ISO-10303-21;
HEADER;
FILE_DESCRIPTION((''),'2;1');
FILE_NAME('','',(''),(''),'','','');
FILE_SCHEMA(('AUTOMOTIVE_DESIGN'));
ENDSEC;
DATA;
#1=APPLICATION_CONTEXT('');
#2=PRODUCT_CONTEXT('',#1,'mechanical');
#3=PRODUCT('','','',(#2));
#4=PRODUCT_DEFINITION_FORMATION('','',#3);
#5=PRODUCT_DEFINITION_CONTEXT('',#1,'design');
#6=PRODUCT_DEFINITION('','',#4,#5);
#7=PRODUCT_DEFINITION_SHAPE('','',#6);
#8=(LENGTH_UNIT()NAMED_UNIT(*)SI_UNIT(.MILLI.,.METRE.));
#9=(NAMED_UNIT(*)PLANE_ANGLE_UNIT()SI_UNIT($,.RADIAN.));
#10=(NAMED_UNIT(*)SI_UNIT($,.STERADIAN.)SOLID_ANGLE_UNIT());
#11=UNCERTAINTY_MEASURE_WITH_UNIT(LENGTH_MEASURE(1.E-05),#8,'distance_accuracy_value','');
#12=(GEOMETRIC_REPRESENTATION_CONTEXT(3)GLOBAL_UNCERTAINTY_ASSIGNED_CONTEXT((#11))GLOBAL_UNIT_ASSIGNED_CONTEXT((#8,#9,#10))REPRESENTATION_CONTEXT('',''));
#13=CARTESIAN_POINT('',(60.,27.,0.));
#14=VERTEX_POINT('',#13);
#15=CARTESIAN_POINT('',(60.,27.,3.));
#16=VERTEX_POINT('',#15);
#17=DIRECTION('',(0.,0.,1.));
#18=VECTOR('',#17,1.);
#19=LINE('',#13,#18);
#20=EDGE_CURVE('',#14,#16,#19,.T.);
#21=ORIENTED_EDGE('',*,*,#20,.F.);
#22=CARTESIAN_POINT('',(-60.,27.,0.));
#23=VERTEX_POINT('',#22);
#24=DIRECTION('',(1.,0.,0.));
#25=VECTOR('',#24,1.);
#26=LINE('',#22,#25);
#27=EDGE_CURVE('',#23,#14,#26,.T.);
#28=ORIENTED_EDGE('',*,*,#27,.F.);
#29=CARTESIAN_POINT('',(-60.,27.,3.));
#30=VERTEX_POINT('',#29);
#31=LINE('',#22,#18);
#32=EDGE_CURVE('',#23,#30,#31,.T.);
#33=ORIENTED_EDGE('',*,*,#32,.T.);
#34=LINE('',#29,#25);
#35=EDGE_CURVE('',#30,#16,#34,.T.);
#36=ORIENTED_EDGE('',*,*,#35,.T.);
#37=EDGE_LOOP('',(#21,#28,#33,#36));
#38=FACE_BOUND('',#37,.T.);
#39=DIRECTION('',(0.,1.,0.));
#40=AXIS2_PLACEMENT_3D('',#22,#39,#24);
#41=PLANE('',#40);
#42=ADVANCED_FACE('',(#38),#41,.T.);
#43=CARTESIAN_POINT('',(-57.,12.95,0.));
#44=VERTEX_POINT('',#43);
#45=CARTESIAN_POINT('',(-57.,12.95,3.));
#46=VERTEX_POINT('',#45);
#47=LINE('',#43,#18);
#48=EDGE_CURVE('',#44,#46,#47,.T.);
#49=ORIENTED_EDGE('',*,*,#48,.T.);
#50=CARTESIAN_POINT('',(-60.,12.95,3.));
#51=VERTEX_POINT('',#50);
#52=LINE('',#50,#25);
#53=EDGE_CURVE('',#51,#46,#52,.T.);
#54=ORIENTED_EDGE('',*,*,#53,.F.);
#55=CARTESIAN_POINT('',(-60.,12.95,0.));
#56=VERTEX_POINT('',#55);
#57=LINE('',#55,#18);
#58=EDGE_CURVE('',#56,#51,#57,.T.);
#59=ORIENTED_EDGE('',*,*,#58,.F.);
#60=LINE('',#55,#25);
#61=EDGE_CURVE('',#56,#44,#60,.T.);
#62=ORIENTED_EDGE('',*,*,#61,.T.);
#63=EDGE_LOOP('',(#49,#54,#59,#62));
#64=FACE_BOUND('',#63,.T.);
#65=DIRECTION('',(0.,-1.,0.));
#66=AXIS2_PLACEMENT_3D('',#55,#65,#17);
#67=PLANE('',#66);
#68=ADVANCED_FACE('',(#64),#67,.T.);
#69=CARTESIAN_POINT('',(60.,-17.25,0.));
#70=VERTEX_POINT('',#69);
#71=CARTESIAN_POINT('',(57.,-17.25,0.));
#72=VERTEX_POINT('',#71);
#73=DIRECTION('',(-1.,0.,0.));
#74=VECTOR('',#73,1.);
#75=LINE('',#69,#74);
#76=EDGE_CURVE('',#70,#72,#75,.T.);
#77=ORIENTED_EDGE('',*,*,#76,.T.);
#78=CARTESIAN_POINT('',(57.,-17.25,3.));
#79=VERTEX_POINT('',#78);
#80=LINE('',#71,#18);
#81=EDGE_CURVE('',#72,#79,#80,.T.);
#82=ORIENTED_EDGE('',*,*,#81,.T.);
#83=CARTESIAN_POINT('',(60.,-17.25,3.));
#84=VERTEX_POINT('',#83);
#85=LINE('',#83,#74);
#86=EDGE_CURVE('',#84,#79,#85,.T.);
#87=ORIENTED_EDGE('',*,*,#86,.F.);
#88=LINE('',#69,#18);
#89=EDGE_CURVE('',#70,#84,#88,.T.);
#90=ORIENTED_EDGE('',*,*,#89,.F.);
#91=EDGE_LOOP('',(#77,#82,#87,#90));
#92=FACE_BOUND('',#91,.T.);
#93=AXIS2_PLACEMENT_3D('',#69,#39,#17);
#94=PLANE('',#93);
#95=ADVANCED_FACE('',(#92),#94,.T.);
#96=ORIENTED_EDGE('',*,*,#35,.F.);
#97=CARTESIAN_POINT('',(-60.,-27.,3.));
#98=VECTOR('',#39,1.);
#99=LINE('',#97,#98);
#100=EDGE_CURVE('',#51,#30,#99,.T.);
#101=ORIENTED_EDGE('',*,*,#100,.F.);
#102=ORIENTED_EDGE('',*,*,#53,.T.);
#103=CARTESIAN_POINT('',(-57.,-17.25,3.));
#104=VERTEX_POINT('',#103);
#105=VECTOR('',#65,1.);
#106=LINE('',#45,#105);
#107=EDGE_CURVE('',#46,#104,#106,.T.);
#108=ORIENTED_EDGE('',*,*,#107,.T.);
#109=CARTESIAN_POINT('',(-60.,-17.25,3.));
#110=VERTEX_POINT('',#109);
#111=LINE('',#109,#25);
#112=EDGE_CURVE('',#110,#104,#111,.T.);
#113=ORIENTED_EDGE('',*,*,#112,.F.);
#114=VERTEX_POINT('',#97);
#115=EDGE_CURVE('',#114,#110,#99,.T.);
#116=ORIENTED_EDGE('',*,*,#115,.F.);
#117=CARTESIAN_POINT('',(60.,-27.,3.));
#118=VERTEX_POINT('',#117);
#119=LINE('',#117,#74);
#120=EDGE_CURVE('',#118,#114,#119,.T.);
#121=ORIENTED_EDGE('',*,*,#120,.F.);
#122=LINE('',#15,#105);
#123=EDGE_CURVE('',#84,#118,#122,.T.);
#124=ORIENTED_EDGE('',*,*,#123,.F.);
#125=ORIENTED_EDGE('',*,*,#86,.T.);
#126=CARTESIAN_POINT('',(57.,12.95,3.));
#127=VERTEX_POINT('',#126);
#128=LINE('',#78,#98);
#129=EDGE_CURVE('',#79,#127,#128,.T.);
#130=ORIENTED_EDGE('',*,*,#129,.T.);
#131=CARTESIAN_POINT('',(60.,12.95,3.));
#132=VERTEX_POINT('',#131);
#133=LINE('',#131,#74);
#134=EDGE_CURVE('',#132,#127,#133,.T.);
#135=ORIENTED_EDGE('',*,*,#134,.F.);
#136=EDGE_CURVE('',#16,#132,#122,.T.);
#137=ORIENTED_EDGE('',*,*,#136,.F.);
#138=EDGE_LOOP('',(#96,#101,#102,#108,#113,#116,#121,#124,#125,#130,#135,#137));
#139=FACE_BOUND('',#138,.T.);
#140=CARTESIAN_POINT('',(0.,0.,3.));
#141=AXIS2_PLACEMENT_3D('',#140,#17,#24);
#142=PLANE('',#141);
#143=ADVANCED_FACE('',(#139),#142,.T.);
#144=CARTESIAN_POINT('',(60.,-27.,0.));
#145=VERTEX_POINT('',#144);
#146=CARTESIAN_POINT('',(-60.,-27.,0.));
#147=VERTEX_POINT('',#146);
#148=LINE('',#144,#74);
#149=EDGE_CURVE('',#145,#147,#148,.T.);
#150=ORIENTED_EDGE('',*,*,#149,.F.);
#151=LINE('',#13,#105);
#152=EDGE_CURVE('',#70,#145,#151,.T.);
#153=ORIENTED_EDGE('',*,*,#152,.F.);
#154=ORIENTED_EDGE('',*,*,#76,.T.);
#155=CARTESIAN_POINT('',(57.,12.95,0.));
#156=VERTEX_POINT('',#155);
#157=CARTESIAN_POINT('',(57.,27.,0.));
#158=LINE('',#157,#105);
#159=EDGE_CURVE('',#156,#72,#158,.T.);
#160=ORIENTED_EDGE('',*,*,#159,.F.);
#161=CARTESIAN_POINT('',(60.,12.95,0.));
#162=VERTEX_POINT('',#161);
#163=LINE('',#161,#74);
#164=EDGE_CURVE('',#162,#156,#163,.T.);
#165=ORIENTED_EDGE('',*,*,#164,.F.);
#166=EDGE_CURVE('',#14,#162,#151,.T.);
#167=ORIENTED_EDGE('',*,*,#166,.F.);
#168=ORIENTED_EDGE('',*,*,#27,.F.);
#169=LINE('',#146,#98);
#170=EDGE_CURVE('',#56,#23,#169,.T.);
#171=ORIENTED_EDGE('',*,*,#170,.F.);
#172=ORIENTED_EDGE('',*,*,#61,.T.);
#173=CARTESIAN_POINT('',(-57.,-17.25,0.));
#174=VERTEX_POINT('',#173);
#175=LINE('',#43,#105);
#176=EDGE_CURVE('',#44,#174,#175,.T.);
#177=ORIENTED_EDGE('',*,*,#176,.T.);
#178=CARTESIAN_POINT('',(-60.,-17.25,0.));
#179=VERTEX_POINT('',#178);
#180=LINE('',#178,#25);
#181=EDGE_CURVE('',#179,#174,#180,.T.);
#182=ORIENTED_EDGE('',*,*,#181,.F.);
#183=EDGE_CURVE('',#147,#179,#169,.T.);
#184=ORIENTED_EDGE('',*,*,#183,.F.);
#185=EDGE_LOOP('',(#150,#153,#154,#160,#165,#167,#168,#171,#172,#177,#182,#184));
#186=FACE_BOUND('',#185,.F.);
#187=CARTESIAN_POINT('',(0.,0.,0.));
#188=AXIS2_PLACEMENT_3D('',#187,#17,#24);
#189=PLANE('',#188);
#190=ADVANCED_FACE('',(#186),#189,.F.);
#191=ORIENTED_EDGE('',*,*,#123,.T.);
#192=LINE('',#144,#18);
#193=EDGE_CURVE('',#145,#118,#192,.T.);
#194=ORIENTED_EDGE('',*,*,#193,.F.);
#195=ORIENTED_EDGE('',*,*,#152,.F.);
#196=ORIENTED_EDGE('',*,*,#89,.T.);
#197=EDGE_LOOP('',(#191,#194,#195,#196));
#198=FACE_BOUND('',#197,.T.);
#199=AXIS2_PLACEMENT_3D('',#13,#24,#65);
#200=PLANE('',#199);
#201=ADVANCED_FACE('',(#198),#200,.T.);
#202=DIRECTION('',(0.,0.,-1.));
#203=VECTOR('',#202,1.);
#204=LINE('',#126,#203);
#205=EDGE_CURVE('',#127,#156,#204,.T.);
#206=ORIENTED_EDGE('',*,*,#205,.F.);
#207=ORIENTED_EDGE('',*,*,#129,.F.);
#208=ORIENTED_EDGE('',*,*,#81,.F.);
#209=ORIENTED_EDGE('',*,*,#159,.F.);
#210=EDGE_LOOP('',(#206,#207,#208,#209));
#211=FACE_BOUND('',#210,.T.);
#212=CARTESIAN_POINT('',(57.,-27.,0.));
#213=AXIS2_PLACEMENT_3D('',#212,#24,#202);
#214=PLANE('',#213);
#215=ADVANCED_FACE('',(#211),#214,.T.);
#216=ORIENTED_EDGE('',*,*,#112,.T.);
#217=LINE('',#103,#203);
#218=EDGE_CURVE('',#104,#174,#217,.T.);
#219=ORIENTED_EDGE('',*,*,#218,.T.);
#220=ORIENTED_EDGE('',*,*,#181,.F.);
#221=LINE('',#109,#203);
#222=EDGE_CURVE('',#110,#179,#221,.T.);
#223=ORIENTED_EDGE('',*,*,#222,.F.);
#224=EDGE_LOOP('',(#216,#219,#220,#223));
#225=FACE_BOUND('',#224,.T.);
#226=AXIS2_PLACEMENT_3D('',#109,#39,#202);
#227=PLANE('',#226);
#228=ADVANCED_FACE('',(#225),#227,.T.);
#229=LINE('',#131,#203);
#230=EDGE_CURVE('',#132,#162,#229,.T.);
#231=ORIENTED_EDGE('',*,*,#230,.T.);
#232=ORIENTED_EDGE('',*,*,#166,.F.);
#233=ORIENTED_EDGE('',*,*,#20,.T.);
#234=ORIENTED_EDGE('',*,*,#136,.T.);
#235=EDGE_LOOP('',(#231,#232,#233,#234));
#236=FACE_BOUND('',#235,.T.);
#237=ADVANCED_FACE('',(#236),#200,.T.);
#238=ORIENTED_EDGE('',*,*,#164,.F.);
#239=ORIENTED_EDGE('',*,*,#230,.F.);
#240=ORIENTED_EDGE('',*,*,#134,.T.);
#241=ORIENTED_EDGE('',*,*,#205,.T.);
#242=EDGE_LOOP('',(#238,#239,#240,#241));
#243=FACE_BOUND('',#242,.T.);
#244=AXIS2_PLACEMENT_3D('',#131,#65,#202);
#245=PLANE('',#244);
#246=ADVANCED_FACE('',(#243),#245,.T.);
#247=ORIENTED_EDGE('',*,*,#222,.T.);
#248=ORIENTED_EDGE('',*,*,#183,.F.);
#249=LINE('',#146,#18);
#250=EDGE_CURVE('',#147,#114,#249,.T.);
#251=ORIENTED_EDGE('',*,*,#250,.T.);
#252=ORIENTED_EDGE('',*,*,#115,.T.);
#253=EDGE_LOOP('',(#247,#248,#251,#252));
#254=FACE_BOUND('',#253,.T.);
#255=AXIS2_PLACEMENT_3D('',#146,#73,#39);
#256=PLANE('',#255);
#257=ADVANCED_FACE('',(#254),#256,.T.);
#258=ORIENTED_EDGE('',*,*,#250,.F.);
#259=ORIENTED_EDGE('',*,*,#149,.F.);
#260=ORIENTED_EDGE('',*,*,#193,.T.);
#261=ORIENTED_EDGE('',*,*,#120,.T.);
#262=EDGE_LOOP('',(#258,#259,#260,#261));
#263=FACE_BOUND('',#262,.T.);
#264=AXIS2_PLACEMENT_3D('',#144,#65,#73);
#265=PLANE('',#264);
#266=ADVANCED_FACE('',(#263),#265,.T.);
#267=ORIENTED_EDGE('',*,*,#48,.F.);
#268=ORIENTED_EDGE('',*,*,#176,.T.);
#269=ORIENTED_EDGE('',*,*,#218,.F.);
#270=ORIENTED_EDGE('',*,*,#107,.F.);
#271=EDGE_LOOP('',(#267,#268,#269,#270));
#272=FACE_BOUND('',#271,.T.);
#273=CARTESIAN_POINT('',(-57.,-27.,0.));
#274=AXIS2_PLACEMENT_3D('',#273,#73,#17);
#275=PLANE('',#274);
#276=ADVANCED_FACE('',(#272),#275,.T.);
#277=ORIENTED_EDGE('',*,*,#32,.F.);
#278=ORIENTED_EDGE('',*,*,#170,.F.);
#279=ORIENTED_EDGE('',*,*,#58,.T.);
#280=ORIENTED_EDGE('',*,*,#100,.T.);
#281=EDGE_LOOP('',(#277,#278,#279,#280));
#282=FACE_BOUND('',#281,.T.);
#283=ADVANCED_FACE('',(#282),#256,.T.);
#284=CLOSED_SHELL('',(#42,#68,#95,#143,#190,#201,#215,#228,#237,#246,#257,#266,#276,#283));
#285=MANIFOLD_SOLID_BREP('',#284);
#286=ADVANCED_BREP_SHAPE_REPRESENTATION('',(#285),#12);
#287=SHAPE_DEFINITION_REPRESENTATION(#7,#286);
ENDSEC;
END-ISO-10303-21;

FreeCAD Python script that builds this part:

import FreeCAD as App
import Part
import Sketcher

V = App.Vector
Q = App.Units.Quantity


def add_polygon(sketch, points):
    """Adds a closed chain of lines whose ends are joined by coincident constraints."""
    first, n = sketch.GeometryCount, len(points)
    for a, b in zip(points, points[1:] + points[:1]):
        sketch.addGeometry(Part.LineSegment(App.Vector(*a, 0), App.Vector(*b, 0)), False)
    for i in range(n):
        sketch.addConstraint(Sketcher.Constraint("Coincident", first + i, 2, first + (i + 1) % n, 1))

doc = App.newDocument("Part")
body = doc.addObject("PartDesign::Body", "Body")

# Sketch on XY plane
sketch1 = body.newObject("Sketcher::SketchObject", "Sketch")
sketch1.AttachmentSupport = (doc.getObject("XY_Plane"), [""])
sketch1.MapMode = "FlatFace"
add_polygon(sketch1, [(-60, -27), (60, -27), (60, 27), (-60, 27)])  # lines 0-3
sketch1.addConstraint(Sketcher.Constraint("Horizontal", 0))
sketch1.addConstraint(Sketcher.Constraint("Vertical", 1))
sketch1.addConstraint(Sketcher.Constraint("Horizontal", 2))
sketch1.addConstraint(Sketcher.Constraint("Vertical", 3))
sketch1.addConstraint(Sketcher.Constraint("Symmetric", 0, 2, 2, 2, -1, 1))
sketch1.addConstraint(Sketcher.Constraint("DistanceX", 0, 1, 0, 2, Q("120 mm")))
sketch1.addConstraint(Sketcher.Constraint("DistanceY", 1, 1, 1, 2, Q("54 mm")))
pad1 = body.newObject("PartDesign::Pad", "Pad")
pad1.Profile = sketch1
pad1.Length = 3

# Sketch on YZ plane
sketch2 = body.newObject("Sketcher::SketchObject", "Sketch001")
sketch2.AttachmentSupport = (doc.getObject("YZ_Plane"), [""])
sketch2.MapMode = "FlatFace"
sketch2.AttachmentOffset = App.Placement(V(0, 0, 60), App.Rotation())
add_polygon(sketch2, [(-17.2, 0), (12.9, 0), (12.9, 3), (-17.2, 3)])  # lines 0-3
sketch2.addConstraint(Sketcher.Constraint("Horizontal", 0))
sketch2.addConstraint(Sketcher.Constraint("Vertical", 1))
sketch2.addConstraint(Sketcher.Constraint("Horizontal", 2))
sketch2.addConstraint(Sketcher.Constraint("Vertical", 3))
sketch2.addConstraint(Sketcher.Constraint("PointOnObject", 0, 2, -1))
sketch2.addConstraint(Sketcher.Constraint("DistanceY", 1, 1, 1, 2, Q("3 mm")))
sketch2.addConstraint(Sketcher.Constraint("DistanceX", 0, 1, 0, 2, Q("30.2 mm")))
sketch2.addConstraint(Sketcher.Constraint("DistanceX", -1, 1, 0, 2, Q("12.95 mm")))
pocket1 = body.newObject("PartDesign::Pocket", "Pocket")
pocket1.Profile = sketch2
pocket1.Length = 3

# Sketch on YZ plane
sketch3 = body.newObject("Sketcher::SketchObject", "Sketch002")
sketch3.AttachmentSupport = (doc.getObject("YZ_Plane"), [""])
sketch3.MapMode = "FlatFace"
sketch3.AttachmentOffset = App.Placement(V(0, 0, -60), App.Rotation())
add_polygon(sketch3, [(12.9, 3), (12.9, 0), (-17.2, 0), (-17.2, 3)])  # lines 0-3
sketch3.addConstraint(Sketcher.Constraint("Vertical", 0))
sketch3.addConstraint(Sketcher.Constraint("Horizontal", 1))
sketch3.addConstraint(Sketcher.Constraint("Vertical", 2))
sketch3.addConstraint(Sketcher.Constraint("Horizontal", 3))
sketch3.addConstraint(Sketcher.Constraint("PointOnObject", 0, 2, -1))
sketch3.addConstraint(Sketcher.Constraint("DistanceY", 0, 2, 0, 1, Q("3 mm")))
sketch3.addConstraint(Sketcher.Constraint("DistanceX", 1, 2, 1, 1, Q("30.2 mm")))
sketch3.addConstraint(Sketcher.Constraint("DistanceX", -1, 1, 0, 2, Q("12.95 mm")))
pocket2 = body.newObject("PartDesign::Pocket", "Pocket001")
pocket2.Profile = sketch3
pocket2.Length = 3
pocket2.Reversed = True

doc.recompute()
